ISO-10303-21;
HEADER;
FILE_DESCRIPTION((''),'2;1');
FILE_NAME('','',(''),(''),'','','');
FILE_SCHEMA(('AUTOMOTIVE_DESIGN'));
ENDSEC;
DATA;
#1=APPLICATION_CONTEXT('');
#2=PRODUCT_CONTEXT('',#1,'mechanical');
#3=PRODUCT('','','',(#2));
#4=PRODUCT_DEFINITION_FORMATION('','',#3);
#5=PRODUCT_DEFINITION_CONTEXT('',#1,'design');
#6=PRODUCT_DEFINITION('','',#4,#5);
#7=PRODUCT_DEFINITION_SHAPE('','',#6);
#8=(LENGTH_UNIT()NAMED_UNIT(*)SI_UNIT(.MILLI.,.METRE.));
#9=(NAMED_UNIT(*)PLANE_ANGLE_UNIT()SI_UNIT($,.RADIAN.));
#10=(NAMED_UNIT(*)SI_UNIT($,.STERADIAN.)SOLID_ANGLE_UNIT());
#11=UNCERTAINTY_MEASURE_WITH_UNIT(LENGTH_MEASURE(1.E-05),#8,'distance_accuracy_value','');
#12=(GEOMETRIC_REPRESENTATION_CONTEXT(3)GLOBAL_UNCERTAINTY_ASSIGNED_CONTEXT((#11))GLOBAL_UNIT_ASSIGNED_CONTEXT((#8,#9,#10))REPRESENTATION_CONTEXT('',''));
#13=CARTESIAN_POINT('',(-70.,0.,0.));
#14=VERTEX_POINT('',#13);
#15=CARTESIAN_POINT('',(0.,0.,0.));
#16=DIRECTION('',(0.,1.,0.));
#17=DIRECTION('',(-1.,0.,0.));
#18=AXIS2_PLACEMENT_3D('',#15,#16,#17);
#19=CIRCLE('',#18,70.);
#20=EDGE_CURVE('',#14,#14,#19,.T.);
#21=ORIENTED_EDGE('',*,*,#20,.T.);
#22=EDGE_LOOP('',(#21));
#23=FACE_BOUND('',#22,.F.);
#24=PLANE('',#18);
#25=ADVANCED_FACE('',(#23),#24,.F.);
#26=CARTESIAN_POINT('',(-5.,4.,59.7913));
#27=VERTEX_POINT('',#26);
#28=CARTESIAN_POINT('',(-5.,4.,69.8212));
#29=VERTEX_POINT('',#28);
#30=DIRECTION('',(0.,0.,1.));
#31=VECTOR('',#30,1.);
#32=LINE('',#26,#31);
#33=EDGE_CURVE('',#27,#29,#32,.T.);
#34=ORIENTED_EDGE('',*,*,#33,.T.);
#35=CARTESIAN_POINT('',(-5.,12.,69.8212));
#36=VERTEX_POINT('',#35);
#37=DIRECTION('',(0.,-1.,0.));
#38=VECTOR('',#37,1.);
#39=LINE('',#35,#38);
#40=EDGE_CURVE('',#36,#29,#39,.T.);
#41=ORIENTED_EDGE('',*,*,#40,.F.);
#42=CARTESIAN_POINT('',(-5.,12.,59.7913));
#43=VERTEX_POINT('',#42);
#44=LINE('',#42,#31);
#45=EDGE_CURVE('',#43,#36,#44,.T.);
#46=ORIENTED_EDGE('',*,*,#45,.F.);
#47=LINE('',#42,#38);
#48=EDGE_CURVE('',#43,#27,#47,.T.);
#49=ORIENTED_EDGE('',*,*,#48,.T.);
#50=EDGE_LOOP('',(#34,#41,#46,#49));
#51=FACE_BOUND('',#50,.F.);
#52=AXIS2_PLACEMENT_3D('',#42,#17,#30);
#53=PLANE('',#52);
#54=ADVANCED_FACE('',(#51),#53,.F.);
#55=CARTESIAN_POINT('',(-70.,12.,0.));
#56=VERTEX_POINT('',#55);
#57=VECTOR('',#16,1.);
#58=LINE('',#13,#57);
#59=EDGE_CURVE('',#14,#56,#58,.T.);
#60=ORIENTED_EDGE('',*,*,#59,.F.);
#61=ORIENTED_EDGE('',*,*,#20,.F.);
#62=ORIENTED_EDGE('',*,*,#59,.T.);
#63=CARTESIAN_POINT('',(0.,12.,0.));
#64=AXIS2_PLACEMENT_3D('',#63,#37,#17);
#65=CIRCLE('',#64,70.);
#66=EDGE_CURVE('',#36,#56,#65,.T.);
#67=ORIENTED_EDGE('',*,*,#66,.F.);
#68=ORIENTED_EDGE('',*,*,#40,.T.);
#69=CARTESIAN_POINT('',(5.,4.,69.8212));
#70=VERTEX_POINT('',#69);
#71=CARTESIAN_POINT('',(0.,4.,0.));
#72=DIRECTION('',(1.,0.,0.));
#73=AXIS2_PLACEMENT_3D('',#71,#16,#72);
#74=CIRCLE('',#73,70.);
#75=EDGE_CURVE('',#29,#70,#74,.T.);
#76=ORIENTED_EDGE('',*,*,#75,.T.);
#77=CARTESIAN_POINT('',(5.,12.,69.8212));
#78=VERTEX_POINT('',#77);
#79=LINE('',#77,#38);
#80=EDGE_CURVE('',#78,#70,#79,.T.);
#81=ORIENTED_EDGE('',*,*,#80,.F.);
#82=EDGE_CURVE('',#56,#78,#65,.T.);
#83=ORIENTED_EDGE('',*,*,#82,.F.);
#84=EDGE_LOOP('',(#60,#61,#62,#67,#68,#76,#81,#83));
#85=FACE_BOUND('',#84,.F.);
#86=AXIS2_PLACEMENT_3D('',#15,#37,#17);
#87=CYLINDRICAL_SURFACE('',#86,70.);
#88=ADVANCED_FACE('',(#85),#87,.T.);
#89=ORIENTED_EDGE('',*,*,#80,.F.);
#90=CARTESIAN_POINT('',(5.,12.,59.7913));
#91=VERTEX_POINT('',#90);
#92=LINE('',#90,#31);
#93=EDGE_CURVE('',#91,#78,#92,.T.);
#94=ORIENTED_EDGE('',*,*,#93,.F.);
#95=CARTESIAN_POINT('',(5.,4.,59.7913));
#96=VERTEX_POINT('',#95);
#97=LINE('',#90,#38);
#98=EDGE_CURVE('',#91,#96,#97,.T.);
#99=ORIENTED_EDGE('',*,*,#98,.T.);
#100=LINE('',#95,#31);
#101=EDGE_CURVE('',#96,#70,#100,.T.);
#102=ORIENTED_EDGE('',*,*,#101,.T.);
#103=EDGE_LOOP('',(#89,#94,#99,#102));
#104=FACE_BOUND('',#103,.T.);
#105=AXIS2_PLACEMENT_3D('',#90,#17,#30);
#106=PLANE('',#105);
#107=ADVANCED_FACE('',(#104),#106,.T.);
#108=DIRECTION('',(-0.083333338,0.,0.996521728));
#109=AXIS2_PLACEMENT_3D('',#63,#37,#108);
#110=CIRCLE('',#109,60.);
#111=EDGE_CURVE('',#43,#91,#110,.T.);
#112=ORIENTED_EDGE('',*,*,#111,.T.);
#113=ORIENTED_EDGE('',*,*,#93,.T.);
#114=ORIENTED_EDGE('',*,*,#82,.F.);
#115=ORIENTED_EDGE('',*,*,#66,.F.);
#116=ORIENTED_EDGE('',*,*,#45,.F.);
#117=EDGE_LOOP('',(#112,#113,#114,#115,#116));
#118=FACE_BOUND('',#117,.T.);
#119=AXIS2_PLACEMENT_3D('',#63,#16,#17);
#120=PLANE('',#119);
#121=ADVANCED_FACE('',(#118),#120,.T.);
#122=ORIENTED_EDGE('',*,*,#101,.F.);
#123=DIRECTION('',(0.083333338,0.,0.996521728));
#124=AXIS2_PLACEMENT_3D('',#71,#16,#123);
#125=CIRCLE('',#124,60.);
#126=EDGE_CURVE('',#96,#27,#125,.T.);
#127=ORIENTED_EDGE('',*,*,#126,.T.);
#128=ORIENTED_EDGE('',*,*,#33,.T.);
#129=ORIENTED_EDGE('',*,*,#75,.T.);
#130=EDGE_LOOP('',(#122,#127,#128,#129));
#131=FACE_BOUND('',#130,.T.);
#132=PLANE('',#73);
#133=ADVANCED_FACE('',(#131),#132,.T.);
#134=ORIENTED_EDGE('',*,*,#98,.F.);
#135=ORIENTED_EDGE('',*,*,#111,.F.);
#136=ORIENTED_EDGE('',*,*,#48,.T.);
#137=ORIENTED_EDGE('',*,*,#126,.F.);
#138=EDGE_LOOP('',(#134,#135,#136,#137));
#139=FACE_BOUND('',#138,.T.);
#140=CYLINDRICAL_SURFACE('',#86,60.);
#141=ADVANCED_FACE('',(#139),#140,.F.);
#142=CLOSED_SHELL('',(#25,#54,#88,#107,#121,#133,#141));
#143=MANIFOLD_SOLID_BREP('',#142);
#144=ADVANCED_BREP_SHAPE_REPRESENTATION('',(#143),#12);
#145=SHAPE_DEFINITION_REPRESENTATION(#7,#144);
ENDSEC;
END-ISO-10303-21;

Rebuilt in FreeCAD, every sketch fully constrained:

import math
import FreeCAD as App
import Part
import Sketcher

doc = App.newDocument("Part")
body = doc.addObject("PartDesign::Body", "Body")

sketch1 = body.newObject("Sketcher::SketchObject", "Sketch")
sketch1.AttachmentSupport = (doc.getObject("XZ_Plane"), [""])
sketch1.MapMode = "FlatFace"
sketch1.addGeometry([
    Part.Circle(App.Vector(0, 0, 0), App.Vector(0, 0, 1), 70),
    Part.Circle(App.Vector(0, 0, 0), App.Vector(0, 0, 1), 60),
], False)
sketch1.addConstraint([
    Sketcher.Constraint("Coincident", 0, 3, -1, 1),
    Sketcher.Constraint("Coincident", 1, 3, -1, 1),
    Sketcher.Constraint("Diameter", 0, 140.0),
    Sketcher.Constraint("Diameter", 1, 120.0),
])
pad1 = body.newObject("PartDesign::Pad", "Pad")
pad1.Profile = sketch1
pad1.Length = 12
pad1.Reversed = True

sketch2 = body.newObject("Sketcher::SketchObject", "Sketch001")
sketch2.AttachmentSupport = (doc.getObject("XZ_Plane"), [""])
sketch2.MapMode = "FlatFace"
sketch2.addGeometry(Part.Circle(App.Vector(0, 0, 0), App.Vector(0, 0, 1), 60), False)
sketch2.addConstraint([
    Sketcher.Constraint("Coincident", 0, 3, -1, 1),
    Sketcher.Constraint("Diameter", 0, 120.0),
])
pad2 = body.newObject("PartDesign::Pad", "Pad001")
pad2.Profile = sketch2
pad2.Length = 4
pad2.Reversed = True

sketch3 = body.newObject("Sketcher::SketchObject", "Sketch002")
sketch3.AttachmentSupport = (doc.getObject("XZ_Plane"), [""])
sketch3.MapMode = "FlatFace"
sketch3.AttachmentOffset = App.Placement(App.Vector(0, 0, -12), App.Rotation())
sketch3.addGeometry([
    Part.LineSegment(App.Vector(5, 70, 0), App.Vector(5, 60, 0)),
    Part.ArcOfCircle(Part.Circle(App.Vector(0, 0, 0), App.Vector(0, 0, 1), 60), math.radians(85.22), math.radians(94.78)),
    Part.LineSegment(App.Vector(-5, 60, 0), App.Vector(-5, 70, 0)),
    Part.ArcOfCircle(Part.Circle(App.Vector(0, 0, 0), App.Vector(0, 0, 1), 70), math.radians(85.9), math.radians(94.1)),
], False)
sketch3.addConstraint([
    Sketcher.Constraint("Coincident", 0, 2, 1, 1),
    Sketcher.Constraint("Coincident", 1, 2, 2, 1),
    Sketcher.Constraint("Coincident", 2, 2, 3, 2),
    Sketcher.Constraint("Coincident", 3, 1, 0, 1),
    Sketcher.Constraint("Vertical", 0),
    Sketcher.Constraint("Vertical", 2),
    Sketcher.Constraint("Coincident", 1, 3, -1, 1),
    Sketcher.Constraint("Coincident", 3, 3, -1, 1),
    Sketcher.Constraint("Horizontal", 0, 2, 1, 2),
    Sketcher.Constraint("DistanceX", -1, 1, 0, 2, 5.0),
    Sketcher.Constraint("Radius", 1, 60.0),
    Sketcher.Constraint("Radius", 3, 70.0),
])
pocket1 = body.newObject("PartDesign::Pocket", "Pocket")
pocket1.Profile = sketch3
pocket1.Length = 8
pocket1.Reversed = True

doc.recompute()
